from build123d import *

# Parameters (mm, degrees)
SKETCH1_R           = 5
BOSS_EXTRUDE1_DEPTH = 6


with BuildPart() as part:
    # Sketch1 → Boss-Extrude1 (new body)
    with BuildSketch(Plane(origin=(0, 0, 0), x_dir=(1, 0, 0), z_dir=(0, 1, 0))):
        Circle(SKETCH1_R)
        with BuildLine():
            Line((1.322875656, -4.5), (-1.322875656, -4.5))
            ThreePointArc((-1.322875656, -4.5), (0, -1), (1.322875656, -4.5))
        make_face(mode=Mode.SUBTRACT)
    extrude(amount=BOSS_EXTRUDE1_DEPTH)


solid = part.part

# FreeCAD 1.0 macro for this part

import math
import FreeCAD as App
import Part
import Sketcher
from FreeCAD import Vector
Q = App.Units.Quantity

doc = App.newDocument("Part")
body = doc.addObject("PartDesign::Body", "Body")

sketch1 = body.newObject("Sketcher::SketchObject", "Sketch")
sketch1.AttachmentSupport = (doc.getObject("XZ_Plane"), [""])
sketch1.MapMode = "FlatFace"
sketch1.addGeometry(Part.Circle(Vector(0, 0, 0), Vector(0, 0, 1), 5), False)
sketch1.addGeometry(Part.ArcOfCircle(Part.Circle(Vector(0, 3, 0), Vector(0, 0, 1), 2), math.radians(131), math.radians(409)), False)
sketch1.addGeometry(Part.LineSegment(Vector(1.3, 4.5, 0), Vector(-1.3, 4.5, 0)), False)
sketch1.addConstraint(Sketcher.Constraint("Coincident", 1, 1, 2, 2))
sketch1.addConstraint(Sketcher.Constraint("Coincident", 2, 1, 1, 2))
sketch1.addConstraint(Sketcher.Constraint("Horizontal", 2))
sketch1.addConstraint(Sketcher.Constraint("Coincident", 0, 3, -1, 1))
sketch1.addConstraint(Sketcher.Constraint("PointOnObject", 1, 3, -2))
sketch1.addConstraint(Sketcher.Constraint("Diameter", 0, Q("10 mm")))
sketch1.addConstraint(Sketcher.Constraint("Radius", 1, Q("2 mm")))
sketch1.addConstraint(Sketcher.Constraint("DistanceY", -1, 1, 1, 3, Q("3 mm")))
sketch1.addConstraint(Sketcher.Constraint("DistanceY", -1, 1, 1, 1, Q("4.5 mm")))
pad1 = body.newObject("PartDesign::Pad", "Pad")
pad1.Profile = sketch1
pad1.Length = 6
pad1.Reversed = True

doc.recompute()
